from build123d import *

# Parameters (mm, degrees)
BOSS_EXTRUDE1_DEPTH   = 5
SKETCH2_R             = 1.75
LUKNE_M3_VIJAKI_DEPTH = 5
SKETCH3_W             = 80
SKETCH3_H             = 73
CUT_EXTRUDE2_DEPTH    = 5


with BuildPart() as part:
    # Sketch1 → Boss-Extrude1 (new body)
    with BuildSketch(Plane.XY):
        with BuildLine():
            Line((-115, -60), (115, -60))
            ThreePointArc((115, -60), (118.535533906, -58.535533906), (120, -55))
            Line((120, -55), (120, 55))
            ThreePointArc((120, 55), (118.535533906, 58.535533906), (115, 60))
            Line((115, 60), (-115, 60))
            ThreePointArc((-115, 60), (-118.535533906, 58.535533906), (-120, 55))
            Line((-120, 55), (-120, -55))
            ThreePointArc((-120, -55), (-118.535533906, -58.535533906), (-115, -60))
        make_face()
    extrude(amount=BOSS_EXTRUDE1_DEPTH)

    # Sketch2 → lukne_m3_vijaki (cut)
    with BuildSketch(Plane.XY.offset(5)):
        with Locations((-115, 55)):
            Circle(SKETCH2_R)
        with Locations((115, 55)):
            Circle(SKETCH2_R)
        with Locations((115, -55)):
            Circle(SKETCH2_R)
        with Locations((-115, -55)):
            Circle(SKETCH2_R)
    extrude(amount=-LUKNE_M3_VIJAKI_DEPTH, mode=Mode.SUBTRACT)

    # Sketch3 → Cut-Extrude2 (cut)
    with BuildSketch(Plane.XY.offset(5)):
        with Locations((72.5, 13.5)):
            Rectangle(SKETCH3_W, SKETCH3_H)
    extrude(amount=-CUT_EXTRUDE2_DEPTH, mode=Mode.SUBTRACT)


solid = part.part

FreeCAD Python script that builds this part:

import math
import FreeCAD as App
import Part
import Sketcher

V = App.Vector
Q = App.Units.Quantity

doc = App.newDocument("Part")
body = doc.addObject("PartDesign::Body", "Body")

# Sketch on XY plane
sketch1 = doc.addObject("Sketcher::SketchObject", "Sketch")
body.addObject(sketch1)
sketch1.AttachmentSupport = (doc.XY_Plane, [""])
sketch1.MapMode = "FlatFace"
sketch1.addGeometry([
    Part.LineSegment(V(-115, -60, 0), V(115, -60, 0)),  # 0
    Part.ArcOfCircle(Part.Circle(V(115, -55, 0), V(0, 0, 1), 5), math.radians(-90), math.radians(0)),  # 1
    Part.LineSegment(V(120, -55, 0), V(120, 55, 0)),  # 2
    Part.ArcOfCircle(Part.Circle(V(115, 55, 0), V(0, 0, 1), 5), math.radians(0), math.radians(90)),  # 3
    Part.LineSegment(V(115, 60, 0), V(-115, 60, 0)),  # 4
    Part.ArcOfCircle(Part.Circle(V(-115, 55, 0), V(0, 0, 1), 5), math.radians(90), math.radians(180)),  # 5
    Part.LineSegment(V(-120, 55, 0), V(-120, -55, 0)),  # 6
    Part.ArcOfCircle(Part.Circle(V(-115, -55, 0), V(0, 0, 1), 5), math.radians(180), math.radians(270)),  # 7
], False)
sketch1.addConstraint([
    Sketcher.Constraint("Tangent", 0, 2, 1, 1),
    Sketcher.Constraint("Tangent", 1, 2, 2, 1),
    Sketcher.Constraint("Tangent", 2, 2, 3, 1),
    Sketcher.Constraint("Tangent", 3, 2, 4, 1),
    Sketcher.Constraint("Tangent", 4, 2, 5, 1),
    Sketcher.Constraint("Tangent", 5, 2, 6, 1),
    Sketcher.Constraint("Tangent", 6, 2, 7, 1),
    Sketcher.Constraint("Tangent", 7, 2, 0, 1),
    Sketcher.Constraint("Horizontal", 0),
    Sketcher.Constraint("Vertical", 2),
    Sketcher.Constraint("Horizontal", 4),
    Sketcher.Constraint("Vertical", 6),
    Sketcher.Constraint("Equal", 1, 3),
    Sketcher.Constraint("Equal", 3, 5),
    Sketcher.Constraint("Equal", 5, 7),
    Sketcher.Constraint("Symmetric", 1, 3, 5, 3, -1, 1),
    Sketcher.Constraint("Radius", 1, Q("5 mm")),
    Sketcher.Constraint("DistanceX", 0, 1, 0, 2, Q("230 mm")),
    Sketcher.Constraint("DistanceY", 2, 1, 2, 2, Q("110 mm")),
])
pad1 = doc.addObject("PartDesign::Pad", "Pad")
body.addObject(pad1)
pad1.Profile = sketch1
pad1.Length = 5

# Sketch on XY plane
sketch2 = doc.addObject("Sketcher::SketchObject", "Sketch001")
body.addObject(sketch2)
sketch2.AttachmentSupport = (doc.XY_Plane, [""])
sketch2.MapMode = "FlatFace"
sketch2.AttachmentOffset = App.Placement(V(0, 0, 5), App.Rotation())
sketch2.addGeometry([
    Part.Circle(V(-115, 55, 0), V(0, 0, 1), 1.8),
    Part.Circle(V(115, 55, 0), V(0, 0, 1), 1.8),
    Part.Circle(V(115, -55, 0), V(0, 0, 1), 1.8),
    Part.Circle(V(-115, -55, 0), V(0, 0, 1), 1.8),
], False)
sketch2.addConstraint([
    Sketcher.Constraint("Equal", 0, 1),
    Sketcher.Constraint("Equal", 1, 2),
    Sketcher.Constraint("Equal", 2, 3),
    Sketcher.Constraint("Symmetric", 0, 3, 2, 3, -1, 1),
    Sketcher.Constraint("Symmetric", 1, 3, 3, 3, -1, 1),
    Sketcher.Constraint("Symmetric", 0, 3, 1, 3, -2),
    Sketcher.Constraint("Diameter", 0, Q("3.5 mm")),
    Sketcher.Constraint("DistanceX", 0, 3, -1, 1, Q("115 mm")),
    Sketcher.Constraint("DistanceY", -1, 1, 0, 3, Q("55 mm")),
])
pocket1 = doc.addObject("PartDesign::Pocket", "Pocket")
body.addObject(pocket1)
pocket1.Profile = sketch2
pocket1.Length = 5

# Sketch on XY plane
sketch3 = doc.addObject("Sketcher::SketchObject", "Sketch002")
body.addObject(sketch3)
sketch3.AttachmentSupport = (doc.XY_Plane, [""])
sketch3.MapMode = "FlatFace"
sketch3.AttachmentOffset = App.Placement(V(0, 0, 5), App.Rotation())
sketch3.addGeometry([
    Part.LineSegment(V(32, 50, 0), V(32, -23, 0)),
    Part.LineSegment(V(32, -23, 0), V(112, -23, 0)),
    Part.LineSegment(V(112, -23, 0), V(112, 50, 0)),
    Part.LineSegment(V(112, 50, 0), V(32, 50, 0)),
], False)
sketch3.addConstraint([
    Sketcher.Constraint("Coincident", 0, 2, 1, 1),
    Sketcher.Constraint("Coincident", 1, 2, 2, 1),
    Sketcher.Constraint("Coincident", 2, 2, 3, 1),
    Sketcher.Constraint("Coincident", 3, 2, 0, 1),
    Sketcher.Constraint("Vertical", 0),
    Sketcher.Constraint("Horizontal", 1),
    Sketcher.Constraint("Vertical", 2),
    Sketcher.Constraint("Horizontal", 3),
    Sketcher.Constraint("DistanceX", 1, 1, 1, 2, Q("80 mm")),
    Sketcher.Constraint("DistanceY", 0, 2, 0, 1, Q("73 mm")),
    Sketcher.Constraint("DistanceY", 0, 2, -1, 1, Q("23 mm")),
    Sketcher.Constraint("DistanceX", -1, 1, 0, 2, Q("32.5 mm")),
])
pocket2 = doc.addObject("PartDesign::Pocket", "Pocket001")
body.addObject(pocket2)
pocket2.Profile = sketch3
pocket2.Length = 5

doc.recompute()
